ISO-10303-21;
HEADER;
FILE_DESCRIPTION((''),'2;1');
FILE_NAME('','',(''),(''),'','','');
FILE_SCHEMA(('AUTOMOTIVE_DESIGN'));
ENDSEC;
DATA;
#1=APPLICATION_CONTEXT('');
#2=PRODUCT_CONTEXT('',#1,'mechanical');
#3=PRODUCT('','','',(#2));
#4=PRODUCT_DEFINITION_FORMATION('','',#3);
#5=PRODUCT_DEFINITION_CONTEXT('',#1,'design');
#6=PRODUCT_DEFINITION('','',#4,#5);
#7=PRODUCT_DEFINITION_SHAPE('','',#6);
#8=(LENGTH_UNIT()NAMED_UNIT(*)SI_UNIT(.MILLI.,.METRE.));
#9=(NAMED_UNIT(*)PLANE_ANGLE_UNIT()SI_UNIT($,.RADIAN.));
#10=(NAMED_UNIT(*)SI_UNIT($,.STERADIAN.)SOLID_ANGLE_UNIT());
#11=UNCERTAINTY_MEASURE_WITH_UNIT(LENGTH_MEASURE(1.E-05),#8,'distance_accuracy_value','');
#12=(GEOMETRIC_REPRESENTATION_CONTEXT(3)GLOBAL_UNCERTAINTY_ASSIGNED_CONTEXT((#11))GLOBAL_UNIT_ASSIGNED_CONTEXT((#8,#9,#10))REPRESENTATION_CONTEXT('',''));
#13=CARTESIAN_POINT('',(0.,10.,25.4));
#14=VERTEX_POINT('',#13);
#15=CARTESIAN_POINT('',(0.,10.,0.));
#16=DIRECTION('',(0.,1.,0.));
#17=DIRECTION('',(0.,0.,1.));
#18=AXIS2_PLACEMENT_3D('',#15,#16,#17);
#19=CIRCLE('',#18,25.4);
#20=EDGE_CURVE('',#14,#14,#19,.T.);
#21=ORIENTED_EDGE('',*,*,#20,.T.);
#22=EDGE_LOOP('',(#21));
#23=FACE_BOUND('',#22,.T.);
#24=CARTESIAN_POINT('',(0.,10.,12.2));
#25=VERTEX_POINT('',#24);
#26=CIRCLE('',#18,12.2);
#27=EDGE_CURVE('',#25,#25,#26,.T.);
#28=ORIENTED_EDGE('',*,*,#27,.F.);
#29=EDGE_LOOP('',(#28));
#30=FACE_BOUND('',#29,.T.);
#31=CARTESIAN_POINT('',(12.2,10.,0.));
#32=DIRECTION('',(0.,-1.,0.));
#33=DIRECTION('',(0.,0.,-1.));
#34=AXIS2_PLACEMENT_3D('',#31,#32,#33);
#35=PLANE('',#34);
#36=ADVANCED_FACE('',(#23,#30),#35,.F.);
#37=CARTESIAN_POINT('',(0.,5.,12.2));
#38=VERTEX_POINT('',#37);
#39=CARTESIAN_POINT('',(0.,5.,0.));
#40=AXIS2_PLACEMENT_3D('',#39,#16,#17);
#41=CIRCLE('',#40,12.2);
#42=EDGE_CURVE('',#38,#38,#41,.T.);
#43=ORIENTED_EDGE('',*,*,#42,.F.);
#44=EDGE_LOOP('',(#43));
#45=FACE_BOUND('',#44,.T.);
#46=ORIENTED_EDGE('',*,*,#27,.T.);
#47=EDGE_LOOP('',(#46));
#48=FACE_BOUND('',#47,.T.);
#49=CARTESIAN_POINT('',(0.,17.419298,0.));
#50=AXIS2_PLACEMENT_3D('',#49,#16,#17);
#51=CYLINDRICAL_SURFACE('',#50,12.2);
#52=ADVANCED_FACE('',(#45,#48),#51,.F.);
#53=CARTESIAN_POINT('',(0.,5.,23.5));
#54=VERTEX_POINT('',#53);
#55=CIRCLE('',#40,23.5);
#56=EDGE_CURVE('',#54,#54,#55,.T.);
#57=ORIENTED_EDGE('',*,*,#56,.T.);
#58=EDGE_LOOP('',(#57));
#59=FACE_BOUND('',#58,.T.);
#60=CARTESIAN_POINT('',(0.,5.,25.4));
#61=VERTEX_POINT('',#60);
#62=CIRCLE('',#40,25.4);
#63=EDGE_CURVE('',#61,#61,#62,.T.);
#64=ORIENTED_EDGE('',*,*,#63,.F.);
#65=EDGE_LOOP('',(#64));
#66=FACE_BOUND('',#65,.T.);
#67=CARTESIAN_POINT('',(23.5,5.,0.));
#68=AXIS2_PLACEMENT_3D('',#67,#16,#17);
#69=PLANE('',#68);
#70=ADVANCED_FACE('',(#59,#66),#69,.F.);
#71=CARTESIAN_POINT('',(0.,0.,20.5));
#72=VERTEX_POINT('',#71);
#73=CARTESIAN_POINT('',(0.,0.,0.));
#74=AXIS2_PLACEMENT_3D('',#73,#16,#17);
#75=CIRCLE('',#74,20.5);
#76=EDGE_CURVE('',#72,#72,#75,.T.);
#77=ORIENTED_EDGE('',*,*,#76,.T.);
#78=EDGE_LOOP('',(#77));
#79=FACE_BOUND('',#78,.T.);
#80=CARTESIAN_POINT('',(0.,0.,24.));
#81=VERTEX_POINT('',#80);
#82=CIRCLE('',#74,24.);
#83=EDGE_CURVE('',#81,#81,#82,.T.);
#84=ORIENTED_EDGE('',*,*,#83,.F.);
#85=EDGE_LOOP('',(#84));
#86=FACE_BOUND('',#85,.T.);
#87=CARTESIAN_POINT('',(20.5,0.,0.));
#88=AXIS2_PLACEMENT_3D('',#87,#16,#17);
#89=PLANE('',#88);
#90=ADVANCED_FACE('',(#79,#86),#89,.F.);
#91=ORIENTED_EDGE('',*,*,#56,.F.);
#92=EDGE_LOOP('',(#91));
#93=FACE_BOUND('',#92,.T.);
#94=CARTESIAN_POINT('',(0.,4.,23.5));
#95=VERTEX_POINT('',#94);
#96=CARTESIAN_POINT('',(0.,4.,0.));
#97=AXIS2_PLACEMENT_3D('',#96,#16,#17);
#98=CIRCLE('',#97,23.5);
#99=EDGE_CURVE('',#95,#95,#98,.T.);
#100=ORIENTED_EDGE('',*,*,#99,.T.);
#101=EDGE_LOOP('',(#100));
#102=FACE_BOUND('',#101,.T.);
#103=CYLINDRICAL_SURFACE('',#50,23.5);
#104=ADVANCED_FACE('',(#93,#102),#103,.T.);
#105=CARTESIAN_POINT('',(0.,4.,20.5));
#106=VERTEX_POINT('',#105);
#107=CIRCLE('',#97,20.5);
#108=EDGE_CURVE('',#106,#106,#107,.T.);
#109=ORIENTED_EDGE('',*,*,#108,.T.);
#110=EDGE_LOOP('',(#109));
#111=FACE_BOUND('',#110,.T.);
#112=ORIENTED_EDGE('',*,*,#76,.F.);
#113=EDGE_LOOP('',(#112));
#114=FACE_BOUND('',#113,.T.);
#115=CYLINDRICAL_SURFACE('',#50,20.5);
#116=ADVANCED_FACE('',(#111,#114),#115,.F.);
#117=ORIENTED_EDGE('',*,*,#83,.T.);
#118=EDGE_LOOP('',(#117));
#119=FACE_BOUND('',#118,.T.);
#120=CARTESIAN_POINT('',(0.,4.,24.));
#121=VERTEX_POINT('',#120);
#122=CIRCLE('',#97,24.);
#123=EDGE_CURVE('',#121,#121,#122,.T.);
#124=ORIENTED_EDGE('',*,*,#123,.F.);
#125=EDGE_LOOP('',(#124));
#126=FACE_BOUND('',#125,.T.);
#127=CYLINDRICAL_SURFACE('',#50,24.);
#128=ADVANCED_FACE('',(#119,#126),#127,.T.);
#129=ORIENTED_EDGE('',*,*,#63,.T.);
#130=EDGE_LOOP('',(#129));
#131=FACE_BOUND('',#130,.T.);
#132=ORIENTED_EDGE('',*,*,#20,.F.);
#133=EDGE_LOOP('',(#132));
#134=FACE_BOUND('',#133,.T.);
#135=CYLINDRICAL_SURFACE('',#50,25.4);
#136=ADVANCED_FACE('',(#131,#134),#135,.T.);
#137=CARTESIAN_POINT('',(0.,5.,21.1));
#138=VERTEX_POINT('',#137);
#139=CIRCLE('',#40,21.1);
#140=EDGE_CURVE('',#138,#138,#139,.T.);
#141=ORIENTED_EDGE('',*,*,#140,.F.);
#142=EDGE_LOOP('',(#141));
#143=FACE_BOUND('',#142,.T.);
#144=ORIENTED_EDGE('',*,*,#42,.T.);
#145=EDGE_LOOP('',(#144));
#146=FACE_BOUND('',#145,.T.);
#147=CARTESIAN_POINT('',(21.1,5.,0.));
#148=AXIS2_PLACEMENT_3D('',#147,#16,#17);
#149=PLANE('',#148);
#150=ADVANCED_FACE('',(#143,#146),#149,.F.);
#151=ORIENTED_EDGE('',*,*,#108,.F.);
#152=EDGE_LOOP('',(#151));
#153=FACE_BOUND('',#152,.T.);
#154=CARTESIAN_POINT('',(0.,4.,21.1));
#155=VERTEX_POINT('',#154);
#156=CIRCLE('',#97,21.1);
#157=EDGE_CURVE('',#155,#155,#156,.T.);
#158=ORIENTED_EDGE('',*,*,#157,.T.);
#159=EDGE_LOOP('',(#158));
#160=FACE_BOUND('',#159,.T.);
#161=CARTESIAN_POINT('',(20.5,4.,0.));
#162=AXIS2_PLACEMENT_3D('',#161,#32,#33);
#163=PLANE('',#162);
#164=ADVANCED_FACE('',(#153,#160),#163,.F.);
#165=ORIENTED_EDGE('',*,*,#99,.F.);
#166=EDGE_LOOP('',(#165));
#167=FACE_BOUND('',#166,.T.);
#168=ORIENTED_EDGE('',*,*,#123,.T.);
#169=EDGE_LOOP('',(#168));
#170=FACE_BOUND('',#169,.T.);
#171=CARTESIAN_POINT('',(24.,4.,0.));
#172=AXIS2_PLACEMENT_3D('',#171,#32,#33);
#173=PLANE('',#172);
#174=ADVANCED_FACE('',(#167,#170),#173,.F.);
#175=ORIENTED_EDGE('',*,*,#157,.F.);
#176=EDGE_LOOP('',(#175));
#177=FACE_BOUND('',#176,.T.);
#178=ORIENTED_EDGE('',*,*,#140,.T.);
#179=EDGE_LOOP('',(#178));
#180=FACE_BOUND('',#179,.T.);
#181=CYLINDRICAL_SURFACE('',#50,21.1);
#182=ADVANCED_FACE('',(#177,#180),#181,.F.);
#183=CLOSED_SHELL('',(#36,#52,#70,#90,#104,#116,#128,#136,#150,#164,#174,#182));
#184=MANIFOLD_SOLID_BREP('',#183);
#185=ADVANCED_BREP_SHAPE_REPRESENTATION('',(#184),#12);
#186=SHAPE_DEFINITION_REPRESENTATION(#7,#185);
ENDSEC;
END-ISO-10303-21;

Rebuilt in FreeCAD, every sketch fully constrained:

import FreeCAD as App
import Part
import Sketcher

doc = App.newDocument("Part")
params = doc.addObject("Spreadsheet::Sheet", "Params")
for row, (alias, value) in enumerate([
    ("sketch1_height", "4 mm"),
    ("sketch1_height2", "1 mm"),
    ("sketch1_height3", "5 mm"),
    ("sketch1_width", "3.5 mm"),
    ("sketch1_width2", "0.5 mm"),
    ("revolution_angle", "360 deg"),
], start=1):
    params.set(f"A{row}", alias)
    params.set(f"B{row}", "=" + value)
    params.setAlias(f"B{row}", alias)

body = doc.addObject("PartDesign::Body", "Body")

sketch1 = doc.addObject("Sketcher::SketchObject", "Sketch")
body.addObject(sketch1)
sketch1.AttachmentSupport = (doc.XY_Plane, [""])
sketch1.MapMode = "FlatFace"
sketch1.addGeometry(Part.LineSegment(App.Vector(20.5, 4, 0), App.Vector(20.5, 0, 0)), False)
sketch1.addGeometry(Part.LineSegment(App.Vector(20.5, 0, 0), App.Vector(24, 0, 0)), False)
sketch1.addGeometry(Part.LineSegment(App.Vector(24, 0, 0), App.Vector(24, 4, 0)), False)
sketch1.addGeometry(Part.LineSegment(App.Vector(24, 4, 0), App.Vector(23.5, 4, 0)), False)
sketch1.addGeometry(Part.LineSegment(App.Vector(23.5, 4, 0), App.Vector(23.5, 5, 0)), False)
sketch1.addGeometry(Part.LineSegment(App.Vector(23.5, 5, 0), App.Vector(25.4, 5, 0)), False)
sketch1.addGeometry(Part.LineSegment(App.Vector(25.4, 5, 0), App.Vector(25.4, 10, 0)), False)
sketch1.addGeometry(Part.LineSegment(App.Vector(25.4, 10, 0), App.Vector(12.2, 10, 0)), False)
sketch1.addGeometry(Part.LineSegment(App.Vector(12.2, 10, 0), App.Vector(12.2, 5, 0)), False)
sketch1.addGeometry(Part.LineSegment(App.Vector(12.2, 5, 0), App.Vector(21.1, 5, 0)), False)
sketch1.addGeometry(Part.LineSegment(App.Vector(21.1, 5, 0), App.Vector(21.1, 4, 0)), False)
sketch1.addGeometry(Part.LineSegment(App.Vector(21.1, 4, 0), App.Vector(20.5, 4, 0)), False)
sketch1.addConstraint(Sketcher.Constraint("Coincident", 0, 2, 1, 1))
sketch1.addConstraint(Sketcher.Constraint("Coincident", 1, 2, 2, 1))
sketch1.addConstraint(Sketcher.Constraint("Coincident", 2, 2, 3, 1))
sketch1.addConstraint(Sketcher.Constraint("Coincident", 3, 2, 4, 1))
sketch1.addConstraint(Sketcher.Constraint("Coincident", 4, 2, 5, 1))
sketch1.addConstraint(Sketcher.Constraint("Coincident", 5, 2, 6, 1))
sketch1.addConstraint(Sketcher.Constraint("Coincident", 6, 2, 7, 1))
sketch1.addConstraint(Sketcher.Constraint("Coincident", 7, 2, 8, 1))
sketch1.addConstraint(Sketcher.Constraint("Coincident", 8, 2, 9, 1))
sketch1.addConstraint(Sketcher.Constraint("Coincident", 9, 2, 10, 1))
sketch1.addConstraint(Sketcher.Constraint("Coincident", 10, 2, 11, 1))
sketch1.addConstraint(Sketcher.Constraint("Coincident", 11, 2, 0, 1))
sketch1.addConstraint(Sketcher.Constraint("Vertical", 0))
sketch1.addConstraint(Sketcher.Constraint("Horizontal", 1))
sketch1.addConstraint(Sketcher.Constraint("Vertical", 2))
sketch1.addConstraint(Sketcher.Constraint("Horizontal", 3))
sketch1.addConstraint(Sketcher.Constraint("Vertical", 4))
sketch1.addConstraint(Sketcher.Constraint("Horizontal", 5))
sketch1.addConstraint(Sketcher.Constraint("Vertical", 6))
sketch1.addConstraint(Sketcher.Constraint("Horizontal", 7))
sketch1.addConstraint(Sketcher.Constraint("Vertical", 8))
sketch1.addConstraint(Sketcher.Constraint("Horizontal", 9))
sketch1.addConstraint(Sketcher.Constraint("Vertical", 10))
sketch1.addConstraint(Sketcher.Constraint("Horizontal", 11))
sketch1.addConstraint(Sketcher.Constraint("PointOnObject", 0, 2, -1))
sketch1.addConstraint(Sketcher.Constraint("Horizontal", 5, 2, 8, 2))
sketch1.addConstraint(Sketcher.Constraint("Horizontal", 3, 2, 10, 2))
sketch1.addConstraint(Sketcher.Constraint("DistanceY", 0, 2, 0, 1, 4.0))
sketch1.addConstraint(Sketcher.Constraint("DistanceY", 4, 1, 4, 2, 1.0))
sketch1.addConstraint(Sketcher.Constraint("DistanceY", 6, 1, 6, 2, 5.0))
sketch1.addConstraint(Sketcher.Constraint("DistanceX", 1, 1, 1, 2, 3.5))
sketch1.addConstraint(Sketcher.Constraint("DistanceX", 3, 2, 3, 1, 0.5))
sketch1.addConstraint(Sketcher.Constraint("DistanceX", 5, 1, 5, 2, 1.9))
sketch1.addConstraint(Sketcher.Constraint("DistanceX", 7, 2, 7, 1, 13.2))
sketch1.addConstraint(Sketcher.Constraint("DistanceX", 9, 1, 9, 2, 8.9))
sketch1.addConstraint(Sketcher.Constraint("DistanceX", -1, 1, 1, 2, 24.0))
sketch1.setExpression("Constraints[27]", "Params.sketch1_height")
sketch1.setExpression("Constraints[28]", "Params.sketch1_height2")
sketch1.setExpression("Constraints[29]", "Params.sketch1_height3")
sketch1.setExpression("Constraints[30]", "Params.sketch1_width")
sketch1.setExpression("Constraints[31]", "Params.sketch1_width2")
revolution = doc.addObject("PartDesign::Revolution", "Revolution")
body.addObject(revolution)
revolution.Profile = sketch1
revolution.ReferenceAxis = (sketch1, ["V_Axis"])
revolution.setExpression("Angle", "Params.revolution_angle")

doc.recompute()
